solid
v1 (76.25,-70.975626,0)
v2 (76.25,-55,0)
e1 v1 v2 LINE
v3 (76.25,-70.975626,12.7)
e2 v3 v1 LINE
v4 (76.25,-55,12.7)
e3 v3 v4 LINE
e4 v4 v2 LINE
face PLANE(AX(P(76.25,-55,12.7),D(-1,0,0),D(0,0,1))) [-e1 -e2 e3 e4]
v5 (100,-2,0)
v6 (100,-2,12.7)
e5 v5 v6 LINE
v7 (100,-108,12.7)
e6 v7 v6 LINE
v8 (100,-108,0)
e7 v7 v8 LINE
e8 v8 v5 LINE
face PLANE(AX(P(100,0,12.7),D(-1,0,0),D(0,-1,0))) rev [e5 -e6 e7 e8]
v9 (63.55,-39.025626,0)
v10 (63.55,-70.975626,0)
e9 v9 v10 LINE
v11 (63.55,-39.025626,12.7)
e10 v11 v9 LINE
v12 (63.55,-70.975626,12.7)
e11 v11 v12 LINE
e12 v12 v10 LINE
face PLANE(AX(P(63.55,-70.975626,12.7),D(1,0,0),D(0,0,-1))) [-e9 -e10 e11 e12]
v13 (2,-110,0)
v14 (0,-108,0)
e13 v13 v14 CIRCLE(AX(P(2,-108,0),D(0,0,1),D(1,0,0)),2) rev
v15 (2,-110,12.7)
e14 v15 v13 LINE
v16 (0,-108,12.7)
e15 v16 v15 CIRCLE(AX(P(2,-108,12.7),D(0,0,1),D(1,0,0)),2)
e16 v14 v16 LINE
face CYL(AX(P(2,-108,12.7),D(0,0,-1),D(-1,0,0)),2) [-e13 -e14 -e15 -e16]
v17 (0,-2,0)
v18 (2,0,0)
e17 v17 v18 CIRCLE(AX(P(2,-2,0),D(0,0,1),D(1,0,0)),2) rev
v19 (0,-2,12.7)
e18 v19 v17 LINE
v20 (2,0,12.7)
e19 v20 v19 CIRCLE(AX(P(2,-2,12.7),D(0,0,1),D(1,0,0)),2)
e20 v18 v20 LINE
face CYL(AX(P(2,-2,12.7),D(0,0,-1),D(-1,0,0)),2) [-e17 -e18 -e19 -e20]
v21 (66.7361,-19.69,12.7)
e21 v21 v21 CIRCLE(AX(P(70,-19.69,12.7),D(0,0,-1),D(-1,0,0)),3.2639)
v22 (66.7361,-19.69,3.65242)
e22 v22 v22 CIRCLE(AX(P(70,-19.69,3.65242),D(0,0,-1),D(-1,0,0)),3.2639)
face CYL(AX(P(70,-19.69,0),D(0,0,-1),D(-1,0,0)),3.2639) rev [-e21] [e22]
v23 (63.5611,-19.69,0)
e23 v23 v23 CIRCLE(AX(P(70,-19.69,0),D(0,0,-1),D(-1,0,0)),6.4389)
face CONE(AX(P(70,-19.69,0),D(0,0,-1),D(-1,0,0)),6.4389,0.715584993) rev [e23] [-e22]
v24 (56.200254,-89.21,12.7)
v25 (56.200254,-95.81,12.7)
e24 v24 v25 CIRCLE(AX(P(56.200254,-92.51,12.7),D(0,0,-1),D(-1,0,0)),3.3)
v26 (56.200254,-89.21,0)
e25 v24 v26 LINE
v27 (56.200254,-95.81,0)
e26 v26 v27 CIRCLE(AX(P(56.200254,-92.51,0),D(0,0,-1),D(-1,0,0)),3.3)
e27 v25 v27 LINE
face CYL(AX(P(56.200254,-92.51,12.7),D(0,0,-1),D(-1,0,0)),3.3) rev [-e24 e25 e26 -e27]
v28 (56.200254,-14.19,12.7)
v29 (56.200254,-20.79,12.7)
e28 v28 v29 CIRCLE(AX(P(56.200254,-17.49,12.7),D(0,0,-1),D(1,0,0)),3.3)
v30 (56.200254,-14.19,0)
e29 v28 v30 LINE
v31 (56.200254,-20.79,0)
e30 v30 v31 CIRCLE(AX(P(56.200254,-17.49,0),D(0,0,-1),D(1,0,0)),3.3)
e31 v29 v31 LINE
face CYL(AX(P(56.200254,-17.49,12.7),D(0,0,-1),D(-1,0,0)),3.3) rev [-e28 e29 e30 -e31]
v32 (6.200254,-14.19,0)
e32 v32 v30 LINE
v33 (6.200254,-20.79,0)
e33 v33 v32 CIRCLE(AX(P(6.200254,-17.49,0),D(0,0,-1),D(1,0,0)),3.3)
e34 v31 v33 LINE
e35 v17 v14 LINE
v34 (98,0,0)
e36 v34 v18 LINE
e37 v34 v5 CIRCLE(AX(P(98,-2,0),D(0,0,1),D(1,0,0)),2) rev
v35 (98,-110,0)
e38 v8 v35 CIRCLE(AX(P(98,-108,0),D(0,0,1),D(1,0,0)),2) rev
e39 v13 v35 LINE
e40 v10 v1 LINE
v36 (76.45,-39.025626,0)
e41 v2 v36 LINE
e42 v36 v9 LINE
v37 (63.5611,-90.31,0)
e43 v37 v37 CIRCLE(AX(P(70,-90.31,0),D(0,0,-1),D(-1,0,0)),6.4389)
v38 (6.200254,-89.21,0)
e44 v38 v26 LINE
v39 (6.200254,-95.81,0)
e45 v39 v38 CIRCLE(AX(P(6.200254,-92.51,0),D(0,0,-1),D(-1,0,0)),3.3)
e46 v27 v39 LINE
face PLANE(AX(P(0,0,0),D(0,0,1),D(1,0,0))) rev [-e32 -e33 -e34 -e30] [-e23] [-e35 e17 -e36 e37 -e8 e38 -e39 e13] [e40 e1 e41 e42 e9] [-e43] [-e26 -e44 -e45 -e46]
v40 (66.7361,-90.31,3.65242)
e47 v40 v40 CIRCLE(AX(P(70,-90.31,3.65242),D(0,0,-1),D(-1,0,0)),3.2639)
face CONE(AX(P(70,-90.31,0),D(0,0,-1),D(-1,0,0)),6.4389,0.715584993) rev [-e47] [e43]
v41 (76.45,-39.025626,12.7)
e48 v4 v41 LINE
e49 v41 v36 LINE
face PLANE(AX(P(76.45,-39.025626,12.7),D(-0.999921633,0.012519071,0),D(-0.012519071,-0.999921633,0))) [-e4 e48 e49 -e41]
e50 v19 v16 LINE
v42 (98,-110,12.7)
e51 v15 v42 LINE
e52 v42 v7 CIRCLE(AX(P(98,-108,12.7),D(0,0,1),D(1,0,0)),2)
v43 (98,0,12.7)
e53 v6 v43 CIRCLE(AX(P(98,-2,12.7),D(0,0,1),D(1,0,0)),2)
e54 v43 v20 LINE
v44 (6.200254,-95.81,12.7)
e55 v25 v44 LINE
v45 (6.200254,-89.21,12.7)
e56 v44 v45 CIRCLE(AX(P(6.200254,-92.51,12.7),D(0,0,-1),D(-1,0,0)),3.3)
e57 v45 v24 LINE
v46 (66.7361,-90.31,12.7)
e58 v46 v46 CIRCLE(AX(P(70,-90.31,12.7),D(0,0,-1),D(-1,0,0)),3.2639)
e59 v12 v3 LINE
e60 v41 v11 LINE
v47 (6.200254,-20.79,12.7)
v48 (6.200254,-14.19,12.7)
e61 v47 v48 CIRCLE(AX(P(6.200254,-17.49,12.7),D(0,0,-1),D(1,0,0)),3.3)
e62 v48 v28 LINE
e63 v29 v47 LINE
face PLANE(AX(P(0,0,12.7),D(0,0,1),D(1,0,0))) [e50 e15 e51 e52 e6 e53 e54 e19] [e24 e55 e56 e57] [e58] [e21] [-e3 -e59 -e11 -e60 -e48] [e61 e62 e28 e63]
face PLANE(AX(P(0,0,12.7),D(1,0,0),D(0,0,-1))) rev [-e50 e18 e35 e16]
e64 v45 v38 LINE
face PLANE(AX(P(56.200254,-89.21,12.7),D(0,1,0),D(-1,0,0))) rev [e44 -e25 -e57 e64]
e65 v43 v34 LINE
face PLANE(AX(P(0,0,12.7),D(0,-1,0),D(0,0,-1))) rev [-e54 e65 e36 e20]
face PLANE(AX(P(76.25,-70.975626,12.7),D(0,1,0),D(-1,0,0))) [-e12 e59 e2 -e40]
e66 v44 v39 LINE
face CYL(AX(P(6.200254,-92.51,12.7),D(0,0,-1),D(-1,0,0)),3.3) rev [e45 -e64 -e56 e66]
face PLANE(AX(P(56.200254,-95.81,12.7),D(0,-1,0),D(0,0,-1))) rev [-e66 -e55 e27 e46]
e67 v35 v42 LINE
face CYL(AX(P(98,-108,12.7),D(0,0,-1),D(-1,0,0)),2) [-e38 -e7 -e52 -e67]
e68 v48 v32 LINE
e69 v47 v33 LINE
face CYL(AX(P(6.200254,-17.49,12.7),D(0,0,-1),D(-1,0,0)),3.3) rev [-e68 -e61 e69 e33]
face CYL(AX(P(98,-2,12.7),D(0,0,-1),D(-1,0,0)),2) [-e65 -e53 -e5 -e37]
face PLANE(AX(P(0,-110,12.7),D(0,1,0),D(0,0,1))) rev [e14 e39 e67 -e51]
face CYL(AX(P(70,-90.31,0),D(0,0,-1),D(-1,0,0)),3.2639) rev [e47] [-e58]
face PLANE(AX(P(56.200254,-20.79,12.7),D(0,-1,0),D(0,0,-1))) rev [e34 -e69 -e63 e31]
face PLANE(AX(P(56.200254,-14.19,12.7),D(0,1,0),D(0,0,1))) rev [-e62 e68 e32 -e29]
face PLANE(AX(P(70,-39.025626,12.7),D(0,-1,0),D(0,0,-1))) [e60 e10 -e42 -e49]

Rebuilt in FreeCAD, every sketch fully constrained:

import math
import FreeCAD as App
import Part
import Sketcher

V = App.Vector


def edges_at(feature, points):
    """Names of the edges that pass closest to the given points."""
    edges = feature.Shape.Edges
    near = lambda p: min(range(len(edges)), key=lambda i: edges[i].distToShape(Part.Vertex(*p))[0])
    return sorted({f"Edge{near(p) + 1}" for p in points})


def add_polygon(sketch, points):
    """Adds a closed chain of lines whose ends are joined by coincident constraints."""
    first, n = sketch.GeometryCount, len(points)
    for a, b in zip(points, points[1:] + points[:1]):
        sketch.addGeometry(Part.LineSegment(App.Vector(*a, 0), App.Vector(*b, 0)), False)
    for i in range(n):
        sketch.addConstraint(Sketcher.Constraint("Coincident", first + i, 2, first + (i + 1) % n, 1))

doc = App.newDocument("Part")
body = doc.addObject("PartDesign::Body", "Body")

# Sketch on XY plane
sketch1 = body.newObject("Sketcher::SketchObject", "Sketch")
sketch1.AttachmentSupport = (doc.getObject("XY_Plane"), [""])
sketch1.MapMode = "FlatFace"
add_polygon(sketch1, [(0, 0), (0, -110), (100, -110), (100, 0)])  # lines 0-3
add_polygon(sketch1, [(64, -39), (76, -39), (76, -55), (76, -71), (64, -71)])  # lines 4-8
sketch1.addConstraint([
    Sketcher.Constraint("Vertical", 0),
    Sketcher.Constraint("Horizontal", 1),
    Sketcher.Constraint("Vertical", 2),
    Sketcher.Constraint("Horizontal", 3),
    Sketcher.Constraint("Horizontal", 4),
    Sketcher.Constraint("Vertical", 6),
    Sketcher.Constraint("Horizontal", 7),
    Sketcher.Constraint("Vertical", 8),
    Sketcher.Constraint("Coincident", 3, 2, -1, 1),
    Sketcher.Constraint("DistanceX", 1, 1, 1, 2, 100.0),
    Sketcher.Constraint("DistanceY", 0, 2, 0, 1, 110.0),
    Sketcher.Constraint("DistanceX", 4, 1, 4, 2, 12.9),
    Sketcher.Constraint("DistanceX", 7, 2, 7, 1, 12.7),
    Sketcher.Constraint("DistanceY", 5, 2, -1, 1, 55.0),
    Sketcher.Constraint("DistanceY", 8, 1, 8, 2, 31.95),
    Sketcher.Constraint("DistanceX", -1, 1, 4, 2, 76.45),
    Sketcher.Constraint("DistanceY", 6, 2, 6, 1, 15.975626),
])
pad1 = body.newObject("PartDesign::Pad", "Pad")
pad1.Profile = sketch1
pad1.Length = 12.7

# Sketch on XY plane
sketch2 = body.newObject("Sketcher::SketchObject", "Sketch001")
sketch2.AttachmentSupport = (doc.getObject("XY_Plane"), [""])
sketch2.MapMode = "FlatFace"
sketch2.addGeometry(Part.Circle(V(70, -90.3, 0), V(0, 0, 1), 3.3), False)
sketch2.addConstraint([
    Sketcher.Constraint("DistanceX", -1, 1, 0, 3, 70.0),
    Sketcher.Constraint("Diameter", 0, 6.5278),
    Sketcher.Constraint("DistanceY", 0, 3, -1, 1, 90.31),
])
doc.recompute()
hole = body.newObject("PartDesign::Hole", "Hole")
hole.Profile = sketch2
hole.ThreadType = "None"
hole.Diameter = 6.5278
hole.DepthType = "ThroughAll"
hole.HoleCutType = "Countersink"
hole.HoleCutDiameter = 12.8778
hole.HoleCutCountersinkAngle = 82
hole.Reversed = True

# Sketch on XY plane
sketch3 = body.newObject("Sketcher::SketchObject", "Sketch002")
sketch3.AttachmentSupport = (doc.getObject("XY_Plane"), [""])
sketch3.MapMode = "FlatFace"
sketch3.addGeometry(Part.Circle(V(70, -19.7, 0), V(0, 0, 1), 3.3), False)
sketch3.addConstraint([
    Sketcher.Constraint("DistanceX", -1, 1, 0, 3, 70.0),
    Sketcher.Constraint("Diameter", 0, 6.5278),
    Sketcher.Constraint("DistanceY", 0, 3, -1, 1, 19.69),
])
doc.recompute()
hole2 = body.newObject("PartDesign::Hole", "Hole001")
hole2.Profile = sketch3
hole2.ThreadType = "None"
hole2.Diameter = 6.5278
hole2.DepthType = "ThroughAll"
hole2.HoleCutType = "Countersink"
hole2.HoleCutDiameter = 12.8778
hole2.HoleCutCountersinkAngle = 82
hole2.Reversed = True
doc.recompute()

fillet = body.newObject("PartDesign::Fillet", "Fillet")
fillet.Base = (hole2, edges_at(hole2, [
    (0, 0, 6.35),
    (100, 0, 6.35),
    (100, -110, 6.35),
    (0, -110, 6.35),
]))
fillet.Radius = 2

# Sketch on XY plane
sketch4 = body.newObject("Sketcher::SketchObject", "Sketch003")
sketch4.AttachmentSupport = (doc.getObject("XY_Plane"), [""])
sketch4.MapMode = "FlatFace"
sketch4.addGeometry([
    Part.LineSegment(V(6.2, -14.2, 0), V(56.2, -14.2, 0)),  # 0
    Part.ArcOfCircle(Part.Circle(V(56.2, -17.5, 0), V(0, 0, 1), 3.3), math.radians(-90), math.radians(90)),  # 1
    Part.LineSegment(V(56.2, -20.8, 0), V(6.2, -20.8, 0)),  # 2
    Part.ArcOfCircle(Part.Circle(V(6.2, -17.5, 0), V(0, 0, 1), 3.3), math.radians(90), math.radians(270)),  # 3
    Part.LineSegment(V(6.2, -89.2, 0), V(56.2, -89.2, 0)),  # 4
    Part.ArcOfCircle(Part.Circle(V(56.2, -92.5, 0), V(0, 0, 1), 3.3), math.radians(-90), math.radians(90)),  # 5
    Part.LineSegment(V(56.2, -95.8, 0), V(6.2, -95.8, 0)),  # 6
    Part.ArcOfCircle(Part.Circle(V(6.2, -92.5, 0), V(0, 0, 1), 3.3), math.radians(90), math.radians(270)),  # 7
], False)
sketch4.addConstraint([
    Sketcher.Constraint("Tangent", 0, 2, 1, 2),
    Sketcher.Constraint("Tangent", 1, 1, 2, 1),
    Sketcher.Constraint("Tangent", 2, 2, 3, 2),
    Sketcher.Constraint("Tangent", 3, 1, 0, 1),
    Sketcher.Constraint("Tangent", 4, 2, 5, 2),
    Sketcher.Constraint("Tangent", 5, 1, 6, 1),
    Sketcher.Constraint("Tangent", 6, 2, 7, 2),
    Sketcher.Constraint("Tangent", 7, 1, 4, 1),
    Sketcher.Constraint("Horizontal", 0),
    Sketcher.Constraint("Horizontal", 2),
    Sketcher.Constraint("Horizontal", 4),
    Sketcher.Constraint("Horizontal", 6),
    Sketcher.Constraint("Equal", 3, 5),
    Sketcher.Constraint("Vertical", 1, 3, 5, 3),
    Sketcher.Constraint("Vertical", 3, 3, 7, 3),
    Sketcher.Constraint("Radius", 1, 3.3),
    Sketcher.Constraint("DistanceX", 0, 1, 0, 2, 50.0),
    Sketcher.Constraint("DistanceY", 1, 3, -1, 1, 17.49),
    Sketcher.Constraint("DistanceY", 5, 3, -1, 1, 92.51),
    Sketcher.Constraint("DistanceX", -1, 1, 1, 3, 56.200254),
])
pocket1 = body.newObject("PartDesign::Pocket", "Pocket")
pocket1.Profile = sketch4
pocket1.Type = "ThroughAll"
pocket1.Reversed = True

doc.recompute()
